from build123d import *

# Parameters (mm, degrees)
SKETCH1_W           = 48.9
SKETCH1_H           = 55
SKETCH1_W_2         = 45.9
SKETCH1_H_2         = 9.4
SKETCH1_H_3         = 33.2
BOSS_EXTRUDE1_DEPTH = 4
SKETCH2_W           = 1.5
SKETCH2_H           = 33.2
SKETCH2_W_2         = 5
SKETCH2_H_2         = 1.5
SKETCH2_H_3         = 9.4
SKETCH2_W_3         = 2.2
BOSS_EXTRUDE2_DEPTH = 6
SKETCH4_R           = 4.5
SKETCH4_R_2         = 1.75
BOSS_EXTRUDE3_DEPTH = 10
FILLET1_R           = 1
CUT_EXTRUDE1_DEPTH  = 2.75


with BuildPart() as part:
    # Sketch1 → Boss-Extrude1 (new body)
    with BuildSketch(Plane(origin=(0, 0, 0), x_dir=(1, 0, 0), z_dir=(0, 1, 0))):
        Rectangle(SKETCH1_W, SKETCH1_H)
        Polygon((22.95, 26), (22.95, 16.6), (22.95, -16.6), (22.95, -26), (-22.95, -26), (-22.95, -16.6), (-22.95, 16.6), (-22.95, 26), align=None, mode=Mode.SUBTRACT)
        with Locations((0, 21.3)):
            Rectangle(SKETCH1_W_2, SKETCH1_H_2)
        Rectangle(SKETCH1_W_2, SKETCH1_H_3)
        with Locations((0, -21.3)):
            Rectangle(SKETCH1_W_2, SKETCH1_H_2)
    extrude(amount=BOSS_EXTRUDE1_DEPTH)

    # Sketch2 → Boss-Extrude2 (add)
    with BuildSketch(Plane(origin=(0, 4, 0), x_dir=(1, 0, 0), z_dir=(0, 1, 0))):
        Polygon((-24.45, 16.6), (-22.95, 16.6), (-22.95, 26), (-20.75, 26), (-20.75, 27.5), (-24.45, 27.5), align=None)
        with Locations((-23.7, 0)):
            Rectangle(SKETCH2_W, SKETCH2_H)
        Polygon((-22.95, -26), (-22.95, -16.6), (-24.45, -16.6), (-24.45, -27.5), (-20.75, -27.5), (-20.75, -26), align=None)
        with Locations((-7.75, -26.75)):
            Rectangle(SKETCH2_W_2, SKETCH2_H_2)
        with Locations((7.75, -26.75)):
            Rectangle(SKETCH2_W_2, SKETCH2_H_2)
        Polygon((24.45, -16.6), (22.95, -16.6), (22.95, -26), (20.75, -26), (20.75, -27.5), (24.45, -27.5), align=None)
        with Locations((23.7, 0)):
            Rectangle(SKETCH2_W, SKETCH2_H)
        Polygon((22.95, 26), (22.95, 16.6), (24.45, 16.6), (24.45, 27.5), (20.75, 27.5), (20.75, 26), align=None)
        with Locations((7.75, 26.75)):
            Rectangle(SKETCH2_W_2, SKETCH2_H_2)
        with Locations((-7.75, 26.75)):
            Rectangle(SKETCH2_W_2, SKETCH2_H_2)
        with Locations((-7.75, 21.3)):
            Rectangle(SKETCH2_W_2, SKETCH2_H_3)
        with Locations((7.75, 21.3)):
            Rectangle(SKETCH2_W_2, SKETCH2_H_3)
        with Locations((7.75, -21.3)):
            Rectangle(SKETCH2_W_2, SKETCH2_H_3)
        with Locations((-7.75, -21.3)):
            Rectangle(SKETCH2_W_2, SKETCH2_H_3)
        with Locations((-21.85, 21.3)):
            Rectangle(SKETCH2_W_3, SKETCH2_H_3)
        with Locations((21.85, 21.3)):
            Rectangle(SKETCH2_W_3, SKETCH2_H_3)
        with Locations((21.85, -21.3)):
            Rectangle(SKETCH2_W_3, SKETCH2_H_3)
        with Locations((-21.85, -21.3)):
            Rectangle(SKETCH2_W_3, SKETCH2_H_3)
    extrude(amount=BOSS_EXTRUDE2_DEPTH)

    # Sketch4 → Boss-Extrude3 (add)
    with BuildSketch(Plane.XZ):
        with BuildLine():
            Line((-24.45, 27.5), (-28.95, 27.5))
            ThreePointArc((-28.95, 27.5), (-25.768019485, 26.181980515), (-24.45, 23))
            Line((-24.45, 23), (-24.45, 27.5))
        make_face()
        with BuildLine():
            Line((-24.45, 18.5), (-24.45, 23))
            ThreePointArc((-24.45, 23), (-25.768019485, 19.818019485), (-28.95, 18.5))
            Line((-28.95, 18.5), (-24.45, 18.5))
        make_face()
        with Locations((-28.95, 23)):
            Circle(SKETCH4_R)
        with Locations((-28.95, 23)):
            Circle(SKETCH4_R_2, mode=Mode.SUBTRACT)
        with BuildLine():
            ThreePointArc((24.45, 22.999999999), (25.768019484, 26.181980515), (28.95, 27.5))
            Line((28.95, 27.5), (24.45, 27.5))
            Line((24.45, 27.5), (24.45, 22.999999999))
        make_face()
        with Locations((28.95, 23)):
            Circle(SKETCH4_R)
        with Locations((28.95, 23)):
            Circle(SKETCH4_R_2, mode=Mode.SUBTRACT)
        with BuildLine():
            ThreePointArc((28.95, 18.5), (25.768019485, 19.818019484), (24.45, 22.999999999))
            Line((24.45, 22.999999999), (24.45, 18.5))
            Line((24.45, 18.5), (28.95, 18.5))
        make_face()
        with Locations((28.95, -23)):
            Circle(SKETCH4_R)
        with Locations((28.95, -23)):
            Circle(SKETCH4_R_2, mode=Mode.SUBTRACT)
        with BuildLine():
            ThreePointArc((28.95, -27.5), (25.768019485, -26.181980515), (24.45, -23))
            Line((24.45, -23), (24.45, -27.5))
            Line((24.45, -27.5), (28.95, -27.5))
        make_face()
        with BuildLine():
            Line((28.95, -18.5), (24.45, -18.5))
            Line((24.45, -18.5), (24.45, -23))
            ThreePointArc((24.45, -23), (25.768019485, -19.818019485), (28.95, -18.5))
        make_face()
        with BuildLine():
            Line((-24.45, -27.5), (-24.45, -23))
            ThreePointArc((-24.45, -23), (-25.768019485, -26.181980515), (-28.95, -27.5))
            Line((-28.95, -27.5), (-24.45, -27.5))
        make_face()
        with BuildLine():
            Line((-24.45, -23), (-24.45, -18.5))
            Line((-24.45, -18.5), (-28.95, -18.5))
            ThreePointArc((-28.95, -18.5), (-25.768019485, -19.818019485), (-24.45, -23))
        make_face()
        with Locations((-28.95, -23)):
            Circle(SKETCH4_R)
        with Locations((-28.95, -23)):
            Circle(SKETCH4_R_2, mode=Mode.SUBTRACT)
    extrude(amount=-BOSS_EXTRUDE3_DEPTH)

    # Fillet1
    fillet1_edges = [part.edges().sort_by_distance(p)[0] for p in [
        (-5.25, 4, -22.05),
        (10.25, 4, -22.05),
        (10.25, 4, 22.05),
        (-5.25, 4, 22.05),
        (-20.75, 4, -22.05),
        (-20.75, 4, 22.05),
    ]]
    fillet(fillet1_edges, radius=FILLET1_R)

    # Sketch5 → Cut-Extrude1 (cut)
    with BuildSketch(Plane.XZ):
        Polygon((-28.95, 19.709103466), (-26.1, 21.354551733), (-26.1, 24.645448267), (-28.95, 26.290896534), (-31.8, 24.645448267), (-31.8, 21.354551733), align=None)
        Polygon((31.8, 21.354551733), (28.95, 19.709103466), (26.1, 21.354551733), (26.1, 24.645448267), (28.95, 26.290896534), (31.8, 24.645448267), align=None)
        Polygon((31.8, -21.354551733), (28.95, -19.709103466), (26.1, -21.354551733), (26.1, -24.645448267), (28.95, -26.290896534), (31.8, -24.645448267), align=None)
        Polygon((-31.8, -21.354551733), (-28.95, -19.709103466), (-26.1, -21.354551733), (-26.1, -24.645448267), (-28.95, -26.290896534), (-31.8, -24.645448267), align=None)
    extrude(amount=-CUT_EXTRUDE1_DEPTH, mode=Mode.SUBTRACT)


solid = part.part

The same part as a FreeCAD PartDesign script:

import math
import FreeCAD as App
import Part
import Sketcher
Q = App.Units.Quantity


def edges_at(feature, points):
    """Names of the edges that pass closest to the given points."""
    edges = feature.Shape.Edges
    near = lambda p: min(range(len(edges)), key=lambda i: edges[i].distToShape(Part.Vertex(*p))[0])
    return sorted({f"Edge{near(p) + 1}" for p in points})

doc = App.newDocument("Part")
body = doc.addObject("PartDesign::Body", "Body")

sketch1 = body.newObject("Sketcher::SketchObject", "Sketch")
sketch1.AttachmentSupport = (doc.getObject("XZ_Plane"), [""])
sketch1.MapMode = "FlatFace"
sketch1.addGeometry([
    Part.LineSegment(App.Vector(-24, -28, 0), App.Vector(-24, 28, 0)),
    Part.LineSegment(App.Vector(-24, 28, 0), App.Vector(24, 28, 0)),
    Part.LineSegment(App.Vector(24, 28, 0), App.Vector(24, -28, 0)),
    Part.LineSegment(App.Vector(24, -28, 0), App.Vector(-24, -28, 0)),
], False)
sketch1.addConstraint([
    Sketcher.Constraint("Coincident", 0, 2, 1, 1),
    Sketcher.Constraint("Coincident", 1, 2, 2, 1),
    Sketcher.Constraint("Coincident", 2, 2, 3, 1),
    Sketcher.Constraint("Coincident", 3, 2, 0, 1),
    Sketcher.Constraint("Vertical", 0),
    Sketcher.Constraint("Horizontal", 1),
    Sketcher.Constraint("Vertical", 2),
    Sketcher.Constraint("Horizontal", 3),
    Sketcher.Constraint("Symmetric", 0, 2, 2, 2, -1, 1),
    Sketcher.Constraint("DistanceY", 0, 1, 0, 2, Q("55 mm")),
    Sketcher.Constraint("DistanceX", 1, 1, 1, 2, Q("48.9 mm")),
])
pad1 = body.newObject("PartDesign::Pad", "Pad")
pad1.Profile = sketch1
pad1.Length = 4
pad1.Reversed = True

sketch2 = body.newObject("Sketcher::SketchObject", "Sketch001")
sketch2.AttachmentSupport = (doc.getObject("XZ_Plane"), [""])
sketch2.MapMode = "FlatFace"
sketch2.AttachmentOffset = App.Placement(App.Vector(0, 0, -4), App.Rotation())
sketch2.addGeometry([
    Part.LineSegment(App.Vector(-20.8, -27.5, 0), App.Vector(-24.4, -27.5, 0)),
    Part.LineSegment(App.Vector(-24.4, -27.5, 0), App.Vector(-24.4, 27.5, 0)),
    Part.LineSegment(App.Vector(-24.4, 27.5, 0), App.Vector(-20.8, 27.5, 0)),
    Part.LineSegment(App.Vector(-20.8, 27.5, 0), App.Vector(-20.8, 16.6, 0)),
    Part.LineSegment(App.Vector(-20.8, 16.6, 0), App.Vector(-22.9, 16.6, 0)),
    Part.LineSegment(App.Vector(-22.9, 16.6, 0), App.Vector(-22.9, -16.6, 0)),
    Part.LineSegment(App.Vector(-22.9, -16.6, 0), App.Vector(-20.8, -16.6, 0)),
    Part.LineSegment(App.Vector(-20.8, -16.6, 0), App.Vector(-20.8, -27.5, 0)),
    Part.LineSegment(App.Vector(-10.2, 27.5, 0), App.Vector(-5.2, 27.5, 0)),
    Part.LineSegment(App.Vector(-5.2, 27.5, 0), App.Vector(-5.2, 16.6, 0)),
    Part.LineSegment(App.Vector(-5.2, 16.6, 0), App.Vector(-10.2, 16.6, 0)),
    Part.LineSegment(App.Vector(-10.2, 16.6, 0), App.Vector(-10.2, 27.5, 0)),
    Part.LineSegment(App.Vector(5.2, 27.5, 0), App.Vector(10.2, 27.5, 0)),
    Part.LineSegment(App.Vector(10.2, 27.5, 0), App.Vector(10.2, 16.6, 0)),
    Part.LineSegment(App.Vector(10.2, 16.6, 0), App.Vector(5.2, 16.6, 0)),
    Part.LineSegment(App.Vector(5.2, 16.6, 0), App.Vector(5.2, 27.5, 0)),
    Part.LineSegment(App.Vector(20.8, 27.5, 0), App.Vector(24.4, 27.5, 0)),
    Part.LineSegment(App.Vector(24.4, 27.5, 0), App.Vector(24.4, -27.5, 0)),
    Part.LineSegment(App.Vector(24.4, -27.5, 0), App.Vector(20.8, -27.5, 0)),
    Part.LineSegment(App.Vector(20.8, -27.5, 0), App.Vector(20.8, -16.6, 0)),
    Part.LineSegment(App.Vector(20.8, -16.6, 0), App.Vector(22.9, -16.6, 0)),
    Part.LineSegment(App.Vector(22.9, -16.6, 0), App.Vector(22.9, 16.6, 0)),
    Part.LineSegment(App.Vector(22.9, 16.6, 0), App.Vector(20.8, 16.6, 0)),
    Part.LineSegment(App.Vector(20.8, 16.6, 0), App.Vector(20.8, 27.5, 0)),
    Part.LineSegment(App.Vector(5.2, -27.5, 0), App.Vector(5.2, -16.6, 0)),
    Part.LineSegment(App.Vector(5.2, -16.6, 0), App.Vector(10.2, -16.6, 0)),
    Part.LineSegment(App.Vector(10.2, -16.6, 0), App.Vector(10.2, -27.5, 0)),
    Part.LineSegment(App.Vector(10.2, -27.5, 0), App.Vector(5.2, -27.5, 0)),
    Part.LineSegment(App.Vector(-10.2, -27.5, 0), App.Vector(-10.2, -16.6, 0)),
    Part.LineSegment(App.Vector(-10.2, -16.6, 0), App.Vector(-5.2, -16.6, 0)),
    Part.LineSegment(App.Vector(-5.2, -16.6, 0), App.Vector(-5.2, -27.5, 0)),
    Part.LineSegment(App.Vector(-5.2, -27.5, 0), App.Vector(-10.2, -27.5, 0)),
], False)
sketch2.addConstraint([
    Sketcher.Constraint("Coincident", 0, 2, 1, 1),
    Sketcher.Constraint("Coincident", 1, 2, 2, 1),
    Sketcher.Constraint("Coincident", 2, 2, 3, 1),
    Sketcher.Constraint("Coincident", 3, 2, 4, 1),
    Sketcher.Constraint("Coincident", 4, 2, 5, 1),
    Sketcher.Constraint("Coincident", 5, 2, 6, 1),
    Sketcher.Constraint("Coincident", 6, 2, 7, 1),
    Sketcher.Constraint("Coincident", 7, 2, 0, 1),
    Sketcher.Constraint("Coincident", 8, 2, 9, 1),
    Sketcher.Constraint("Coincident", 9, 2, 10, 1),
    Sketcher.Constraint("Coincident", 10, 2, 11, 1),
    Sketcher.Constraint("Coincident", 11, 2, 8, 1),
    Sketcher.Constraint("Coincident", 12, 2, 13, 1),
    Sketcher.Constraint("Coincident", 13, 2, 14, 1),
    Sketcher.Constraint("Coincident", 14, 2, 15, 1),
    Sketcher.Constraint("Coincident", 15, 2, 12, 1),
    Sketcher.Constraint("Coincident", 16, 2, 17, 1),
    Sketcher.Constraint("Coincident", 17, 2, 18, 1),
    Sketcher.Constraint("Coincident", 18, 2, 19, 1),
    Sketcher.Constraint("Coincident", 19, 2, 20, 1),
    Sketcher.Constraint("Coincident", 20, 2, 21, 1),
    Sketcher.Constraint("Coincident", 21, 2, 22, 1),
    Sketcher.Constraint("Coincident", 22, 2, 23, 1),
    Sketcher.Constraint("Coincident", 23, 2, 16, 1),
    Sketcher.Constraint("Coincident", 24, 2, 25, 1),
    Sketcher.Constraint("Coincident", 25, 2, 26, 1),
    Sketcher.Constraint("Coincident", 26, 2, 27, 1),
    Sketcher.Constraint("Coincident", 27, 2, 24, 1),
    Sketcher.Constraint("Coincident", 28, 2, 29, 1),
    Sketcher.Constraint("Coincident", 29, 2, 30, 1),
    Sketcher.Constraint("Coincident", 30, 2, 31, 1),
    Sketcher.Constraint("Coincident", 31, 2, 28, 1),
    Sketcher.Constraint("Horizontal", 0),
    Sketcher.Constraint("Vertical", 1),
    Sketcher.Constraint("Horizontal", 2),
    Sketcher.Constraint("Vertical", 3),
    Sketcher.Constraint("Horizontal", 4),
    Sketcher.Constraint("Vertical", 5),
    Sketcher.Constraint("Horizontal", 6),
    Sketcher.Constraint("Vertical", 7),
    Sketcher.Constraint("Horizontal", 8),
    Sketcher.Constraint("Vertical", 9),
    Sketcher.Constraint("Horizontal", 10),
    Sketcher.Constraint("Vertical", 11),
    Sketcher.Constraint("Horizontal", 12),
    Sketcher.Constraint("Vertical", 13),
    Sketcher.Constraint("Horizontal", 14),
    Sketcher.Constraint("Vertical", 15),
    Sketcher.Constraint("Horizontal", 16),
    Sketcher.Constraint("Vertical", 17),
    Sketcher.Constraint("Horizontal", 18),
    Sketcher.Constraint("Vertical", 19),
    Sketcher.Constraint("Horizontal", 20),
    Sketcher.Constraint("Vertical", 21),
    Sketcher.Constraint("Horizontal", 22),
    Sketcher.Constraint("Vertical", 23),
    Sketcher.Constraint("Vertical", 24),
    Sketcher.Constraint("Horizontal", 25),
    Sketcher.Constraint("Vertical", 26),
    Sketcher.Constraint("Horizontal", 27),
    Sketcher.Constraint("Vertical", 28),
    Sketcher.Constraint("Horizontal", 29),
    Sketcher.Constraint("Vertical", 30),
    Sketcher.Constraint("Horizontal", 31),
    Sketcher.Constraint("Symmetric", 0, 2, 16, 2, -1, 1),
    Sketcher.Constraint("Symmetric", 2, 2, 18, 2, -1, 1),
    Sketcher.Constraint("Symmetric", 4, 2, 20, 2, -1, 1),
    Sketcher.Constraint("Symmetric", 6, 2, 22, 2, -1, 1),
    Sketcher.Constraint("Symmetric", 9, 2, 24, 2, -1, 1),
    Sketcher.Constraint("Symmetric", 11, 2, 26, 2, -1, 1),
    Sketcher.Constraint("Symmetric", 13, 2, 28, 2, -1, 1),
    Sketcher.Constraint("Symmetric", 15, 2, 30, 2, -1, 1),
    Sketcher.Constraint("Symmetric", 11, 2, 12, 2, -2),
    Sketcher.Constraint("Symmetric", 9, 2, 14, 2, -2),
    Sketcher.Constraint("Symmetric", 7, 2, 18, 2, -2),
    Sketcher.Constraint("Horizontal", 2, 2, 8, 2),
    Sketcher.Constraint("Horizontal", 4, 2, 9, 2),
    Sketcher.Constraint("Horizontal", 6, 2, 19, 2),
    Sketcher.Constraint("DistanceX", 8, 1, 8, 2, Q("5 mm")),
    Sketcher.Constraint("DistanceY", 1, 1, 1, 2, Q("55 mm")),
    Sketcher.Constraint("DistanceX", 0, 2, 0, 1, Q("3.7 mm")),
    Sketcher.Constraint("DistanceX", 4, 2, 4, 1, Q("2.2 mm")),
    Sketcher.Constraint("DistanceY", 3, 2, 3, 1, Q("10.9 mm")),
    Sketcher.Constraint("DistanceX", 2, 2, 12, 2, Q("31 mm")),
    Sketcher.Constraint("DistanceX", 2, 2, 8, 2, Q("15.5 mm")),
])
pad2 = body.newObject("PartDesign::Pad", "Pad001")
pad2.Profile = sketch2
pad2.Length = 6
pad2.Reversed = True

sketch3 = body.newObject("Sketcher::SketchObject", "Sketch002")
sketch3.AttachmentSupport = (doc.getObject("XZ_Plane"), [""])
sketch3.MapMode = "FlatFace"
sketch3.addGeometry([
    Part.LineSegment(App.Vector(-24.4, 27.5, 0), App.Vector(-28.9, 27.5, 0)),
    Part.ArcOfCircle(Part.Circle(App.Vector(-28.9, 23, 0), App.Vector(0, 0, 1), 4.5), math.radians(90), math.radians(270)),
    Part.LineSegment(App.Vector(-28.9, 18.5, 0), App.Vector(-24.4, 18.5, 0)),
    Part.LineSegment(App.Vector(-24.4, 18.5, 0), App.Vector(-24.4, 27.5, 0)),
    Part.Circle(App.Vector(-28.9, 23, 0), App.Vector(0, 0, 1), 1.8),
    Part.LineSegment(App.Vector(28.9, 27.5, 0), App.Vector(24.4, 27.5, 0)),
    Part.LineSegment(App.Vector(24.4, 27.5, 0), App.Vector(24.4, 18.5, 0)),
    Part.LineSegment(App.Vector(24.4, 18.5, 0), App.Vector(28.9, 18.5, 0)),
    Part.ArcOfCircle(Part.Circle(App.Vector(28.9, 23, 0), App.Vector(0, 0, 1), 4.5), math.radians(-90), math.radians(90)),
    Part.Circle(App.Vector(28.9, 23, 0), App.Vector(0, 0, 1), 1.8),
    Part.LineSegment(App.Vector(24.4, -27.5, 0), App.Vector(28.9, -27.5, 0)),
    Part.ArcOfCircle(Part.Circle(App.Vector(28.9, -23, 0), App.Vector(0, 0, 1), 4.5), math.radians(-90), math.radians(90)),
    Part.LineSegment(App.Vector(28.9, -18.5, 0), App.Vector(24.4, -18.5, 0)),
    Part.LineSegment(App.Vector(24.4, -18.5, 0), App.Vector(24.4, -27.5, 0)),
    Part.Circle(App.Vector(28.9, -23, 0), App.Vector(0, 0, 1), 1.8),
    Part.LineSegment(App.Vector(-24.4, -27.5, 0), App.Vector(-24.4, -18.5, 0)),
    Part.LineSegment(App.Vector(-24.4, -18.5, 0), App.Vector(-28.9, -18.5, 0)),
    Part.ArcOfCircle(Part.Circle(App.Vector(-28.9, -23, 0), App.Vector(0, 0, 1), 4.5), math.radians(90), math.radians(270)),
    Part.LineSegment(App.Vector(-28.9, -27.5, 0), App.Vector(-24.4, -27.5, 0)),
    Part.Circle(App.Vector(-28.9, -23, 0), App.Vector(0, 0, 1), 1.8),
], False)
sketch3.addConstraint([
    Sketcher.Constraint("Tangent", 0, 2, 1, 1),
    Sketcher.Constraint("Tangent", 1, 2, 2, 1),
    Sketcher.Constraint("Coincident", 2, 2, 3, 1),
    Sketcher.Constraint("Coincident", 3, 2, 0, 1),
    Sketcher.Constraint("Coincident", 5, 2, 6, 1),
    Sketcher.Constraint("Coincident", 6, 2, 7, 1),
    Sketcher.Constraint("Tangent", 7, 2, 8, 1),
    Sketcher.Constraint("Tangent", 8, 2, 5, 1),
    Sketcher.Constraint("Tangent", 10, 2, 11, 1),
    Sketcher.Constraint("Tangent", 11, 2, 12, 1),
    Sketcher.Constraint("Coincident", 12, 2, 13, 1),
    Sketcher.Constraint("Coincident", 13, 2, 10, 1),
    Sketcher.Constraint("Coincident", 15, 2, 16, 1),
    Sketcher.Constraint("Tangent", 16, 2, 17, 1),
    Sketcher.Constraint("Tangent", 17, 2, 18, 1),
    Sketcher.Constraint("Coincident", 18, 2, 15, 1),
    Sketcher.Constraint("Horizontal", 0),
    Sketcher.Constraint("Horizontal", 2),
    Sketcher.Constraint("Vertical", 3),
    Sketcher.Constraint("Horizontal", 5),
    Sketcher.Constraint("Vertical", 6),
    Sketcher.Constraint("Horizontal", 7),
    Sketcher.Constraint("Horizontal", 10),
    Sketcher.Constraint("Horizontal", 12),
    Sketcher.Constraint("Vertical", 13),
    Sketcher.Constraint("Vertical", 15),
    Sketcher.Constraint("Horizontal", 16),
    Sketcher.Constraint("Horizontal", 18),
    Sketcher.Constraint("Coincident", 4, 3, 1, 3),
    Sketcher.Constraint("Coincident", 9, 3, 8, 3),
    Sketcher.Constraint("Coincident", 14, 3, 11, 3),
    Sketcher.Constraint("Coincident", 19, 3, 17, 3),
    Sketcher.Constraint("Equal", 1, 8),
    Sketcher.Constraint("Equal", 4, 9),
    Sketcher.Constraint("Equal", 8, 11),
    Sketcher.Constraint("Equal", 9, 14),
    Sketcher.Constraint("Equal", 11, 17),
    Sketcher.Constraint("Equal", 14, 19),
    Sketcher.Constraint("Symmetric", 1, 3, 11, 3, -1, 1),
    Sketcher.Constraint("Symmetric", 8, 3, 17, 3, -1, 1),
    Sketcher.Constraint("Symmetric", 1, 3, 8, 3, -2),
    Sketcher.Constraint("Vertical", 6, 2, 12, 2),
    Sketcher.Constraint("Vertical", 3, 2, 15, 2),
    Sketcher.Constraint("Equal", 2, 5),
    Sketcher.Constraint("Diameter", 4, Q("3.5 mm")),
    Sketcher.Constraint("Radius", 1, Q("4.5 mm")),
    Sketcher.Constraint("DistanceX", 0, 2, 0, 1, Q("4.5 mm")),
    Sketcher.Constraint("DistanceY", -1, 1, 1, 3, Q("23 mm")),
    Sketcher.Constraint("DistanceX", 1, 3, 8, 3, Q("57.9 mm")),
])
pad3 = body.newObject("PartDesign::Pad", "Pad002")
pad3.Profile = sketch3
pad3.Length = 10
pad3.Reversed = True
doc.recompute()

fillet = body.newObject("PartDesign::Fillet", "Fillet")
fillet.Base = (pad3, edges_at(pad3, [
    (-5.25, 4, -22.05),
    (10.25, 4, -22.05),
    (10.25, 4, 22.05),
    (-5.25, 4, 22.05),
    (-20.75, 4, -22.05),
    (-20.75, 4, 22.05),
]))
fillet.Radius = 1

sketch4 = body.newObject("Sketcher::SketchObject", "Sketch003")
sketch4.AttachmentSupport = (doc.getObject("XZ_Plane"), [""])
sketch4.MapMode = "FlatFace"
sketch4.addGeometry([
    Part.LineSegment(App.Vector(-28.9, 19.7, 0), App.Vector(-26.1, 21.4, 0)),
    Part.LineSegment(App.Vector(-26.1, 21.4, 0), App.Vector(-26.1, 24.6, 0)),
    Part.LineSegment(App.Vector(-26.1, 24.6, 0), App.Vector(-28.9, 26.3, 0)),
    Part.LineSegment(App.Vector(-28.9, 26.3, 0), App.Vector(-31.8, 24.6, 0)),
    Part.LineSegment(App.Vector(-31.8, 24.6, 0), App.Vector(-31.8, 21.4, 0)),
    Part.LineSegment(App.Vector(-31.8, 21.4, 0), App.Vector(-28.9, 19.7, 0)),
    Part.LineSegment(App.Vector(28.9, 19.7, 0), App.Vector(31.8, 21.4, 0)),
    Part.LineSegment(App.Vector(31.8, 21.4, 0), App.Vector(31.8, 24.6, 0)),
    Part.LineSegment(App.Vector(31.8, 24.6, 0), App.Vector(28.9, 26.3, 0)),
    Part.LineSegment(App.Vector(28.9, 26.3, 0), App.Vector(26.1, 24.6, 0)),
    Part.LineSegment(App.Vector(26.1, 24.6, 0), App.Vector(26.1, 21.4, 0)),
    Part.LineSegment(App.Vector(26.1, 21.4, 0), App.Vector(28.9, 19.7, 0)),
    Part.LineSegment(App.Vector(31.8, -21.4, 0), App.Vector(28.9, -19.7, 0)),
    Part.LineSegment(App.Vector(28.9, -19.7, 0), App.Vector(26.1, -21.4, 0)),
    Part.LineSegment(App.Vector(26.1, -21.4, 0), App.Vector(26.1, -24.6, 0)),
    Part.LineSegment(App.Vector(26.1, -24.6, 0), App.Vector(28.9, -26.3, 0)),
    Part.LineSegment(App.Vector(28.9, -26.3, 0), App.Vector(31.8, -24.6, 0)),
    Part.LineSegment(App.Vector(31.8, -24.6, 0), App.Vector(31.8, -21.4, 0)),
    Part.LineSegment(App.Vector(-28.9, -19.7, 0), App.Vector(-31.8, -21.4, 0)),
    Part.LineSegment(App.Vector(-31.8, -21.4, 0), App.Vector(-31.8, -24.6, 0)),
    Part.LineSegment(App.Vector(-31.8, -24.6, 0), App.Vector(-28.9, -26.3, 0)),
    Part.LineSegment(App.Vector(-28.9, -26.3, 0), App.Vector(-26.1, -24.6, 0)),
    Part.LineSegment(App.Vector(-26.1, -24.6, 0), App.Vector(-26.1, -21.4, 0)),
    Part.LineSegment(App.Vector(-26.1, -21.4, 0), App.Vector(-28.9, -19.7, 0)),
], False)
sketch4.addConstraint([
    Sketcher.Constraint("Coincident", 0, 2, 1, 1),
    Sketcher.Constraint("Coincident", 1, 2, 2, 1),
    Sketcher.Constraint("Coincident", 2, 2, 3, 1),
    Sketcher.Constraint("Coincident", 3, 2, 4, 1),
    Sketcher.Constraint("Coincident", 4, 2, 5, 1),
    Sketcher.Constraint("Coincident", 5, 2, 0, 1),
    Sketcher.Constraint("Coincident", 6, 2, 7, 1),
    Sketcher.Constraint("Coincident", 7, 2, 8, 1),
    Sketcher.Constraint("Coincident", 8, 2, 9, 1),
    Sketcher.Constraint("Coincident", 9, 2, 10, 1),
    Sketcher.Constraint("Coincident", 10, 2, 11, 1),
    Sketcher.Constraint("Coincident", 11, 2, 6, 1),
    Sketcher.Constraint("Coincident", 12, 2, 13, 1),
    Sketcher.Constraint("Coincident", 13, 2, 14, 1),
    Sketcher.Constraint("Coincident", 14, 2, 15, 1),
    Sketcher.Constraint("Coincident", 15, 2, 16, 1),
    Sketcher.Constraint("Coincident", 16, 2, 17, 1),
    Sketcher.Constraint("Coincident", 17, 2, 12, 1),
    Sketcher.Constraint("Coincident", 18, 2, 19, 1),
    Sketcher.Constraint("Coincident", 19, 2, 20, 1),
    Sketcher.Constraint("Coincident", 20, 2, 21, 1),
    Sketcher.Constraint("Coincident", 21, 2, 22, 1),
    Sketcher.Constraint("Coincident", 22, 2, 23, 1),
    Sketcher.Constraint("Coincident", 23, 2, 18, 1),
    Sketcher.Constraint("Vertical", 1),
    Sketcher.Constraint("Vertical", 4),
    Sketcher.Constraint("Vertical", 7),
    Sketcher.Constraint("Vertical", 10),
    Sketcher.Constraint("Vertical", 14),
    Sketcher.Constraint("Vertical", 17),
    Sketcher.Constraint("Vertical", 19),
    Sketcher.Constraint("Vertical", 22),
    Sketcher.Constraint("Symmetric", 5, 2, 12, 2, -1, 1),
    Sketcher.Constraint("Symmetric", 0, 2, 13, 2, -1, 1),
    Sketcher.Constraint("Symmetric", 2, 2, 15, 2, -1, 1),
    Sketcher.Constraint("Symmetric", 3, 2, 16, 2, -1, 1),
    Sketcher.Constraint("Symmetric", 6, 2, 18, 2, -1, 1),
    Sketcher.Constraint("Symmetric", 8, 2, 20, 2, -1, 1),
    Sketcher.Constraint("Symmetric", 9, 2, 21, 2, -1, 1),
    Sketcher.Constraint("Symmetric", 11, 2, 23, 2, -1, 1),
    Sketcher.Constraint("Symmetric", 4, 2, 6, 2, -2),
    Sketcher.Constraint("Symmetric", 2, 2, 8, 2, -2),
    Sketcher.Constraint("Symmetric", 1, 2, 9, 2, -2),
    Sketcher.Constraint("Symmetric", 5, 2, 11, 2, -2),
    Sketcher.Constraint("Parallel", 0, 3),
    Sketcher.Constraint("Parallel", 2, 5),
    Sketcher.Constraint("Parallel", 3, 6),
    Sketcher.Constraint("Parallel", 5, 8),
    Sketcher.Constraint("Parallel", 8, 11),
    Sketcher.Constraint("Parallel", 11, 12),
    Sketcher.Constraint("Parallel", 12, 15),
    Sketcher.Constraint("Parallel", 15, 20),
    Sketcher.Constraint("Parallel", 20, 23),
    Sketcher.Constraint("Horizontal", 1, 2, 3, 2),
    Sketcher.Constraint("Horizontal", 0, 2, 4, 2),
    Sketcher.Constraint("Angle", 0, Q("30 deg")),
    Sketcher.Constraint("DistanceY", 13, 2, 9, 2, Q("46 mm")),
    Sketcher.Constraint("DistanceX", 0, 2, -1, 1, Q("26.1 mm")),
    Sketcher.Constraint("DistanceX", 3, 2, -1, 1, Q("31.8 mm")),
    Sketcher.Constraint("DistanceY", 1, 1, 1, 2, Q("3.290897 mm")),
])
pocket1 = body.newObject("PartDesign::Pocket", "Pocket")
pocket1.Profile = sketch4
pocket1.Length = 2.75

doc.recompute()
